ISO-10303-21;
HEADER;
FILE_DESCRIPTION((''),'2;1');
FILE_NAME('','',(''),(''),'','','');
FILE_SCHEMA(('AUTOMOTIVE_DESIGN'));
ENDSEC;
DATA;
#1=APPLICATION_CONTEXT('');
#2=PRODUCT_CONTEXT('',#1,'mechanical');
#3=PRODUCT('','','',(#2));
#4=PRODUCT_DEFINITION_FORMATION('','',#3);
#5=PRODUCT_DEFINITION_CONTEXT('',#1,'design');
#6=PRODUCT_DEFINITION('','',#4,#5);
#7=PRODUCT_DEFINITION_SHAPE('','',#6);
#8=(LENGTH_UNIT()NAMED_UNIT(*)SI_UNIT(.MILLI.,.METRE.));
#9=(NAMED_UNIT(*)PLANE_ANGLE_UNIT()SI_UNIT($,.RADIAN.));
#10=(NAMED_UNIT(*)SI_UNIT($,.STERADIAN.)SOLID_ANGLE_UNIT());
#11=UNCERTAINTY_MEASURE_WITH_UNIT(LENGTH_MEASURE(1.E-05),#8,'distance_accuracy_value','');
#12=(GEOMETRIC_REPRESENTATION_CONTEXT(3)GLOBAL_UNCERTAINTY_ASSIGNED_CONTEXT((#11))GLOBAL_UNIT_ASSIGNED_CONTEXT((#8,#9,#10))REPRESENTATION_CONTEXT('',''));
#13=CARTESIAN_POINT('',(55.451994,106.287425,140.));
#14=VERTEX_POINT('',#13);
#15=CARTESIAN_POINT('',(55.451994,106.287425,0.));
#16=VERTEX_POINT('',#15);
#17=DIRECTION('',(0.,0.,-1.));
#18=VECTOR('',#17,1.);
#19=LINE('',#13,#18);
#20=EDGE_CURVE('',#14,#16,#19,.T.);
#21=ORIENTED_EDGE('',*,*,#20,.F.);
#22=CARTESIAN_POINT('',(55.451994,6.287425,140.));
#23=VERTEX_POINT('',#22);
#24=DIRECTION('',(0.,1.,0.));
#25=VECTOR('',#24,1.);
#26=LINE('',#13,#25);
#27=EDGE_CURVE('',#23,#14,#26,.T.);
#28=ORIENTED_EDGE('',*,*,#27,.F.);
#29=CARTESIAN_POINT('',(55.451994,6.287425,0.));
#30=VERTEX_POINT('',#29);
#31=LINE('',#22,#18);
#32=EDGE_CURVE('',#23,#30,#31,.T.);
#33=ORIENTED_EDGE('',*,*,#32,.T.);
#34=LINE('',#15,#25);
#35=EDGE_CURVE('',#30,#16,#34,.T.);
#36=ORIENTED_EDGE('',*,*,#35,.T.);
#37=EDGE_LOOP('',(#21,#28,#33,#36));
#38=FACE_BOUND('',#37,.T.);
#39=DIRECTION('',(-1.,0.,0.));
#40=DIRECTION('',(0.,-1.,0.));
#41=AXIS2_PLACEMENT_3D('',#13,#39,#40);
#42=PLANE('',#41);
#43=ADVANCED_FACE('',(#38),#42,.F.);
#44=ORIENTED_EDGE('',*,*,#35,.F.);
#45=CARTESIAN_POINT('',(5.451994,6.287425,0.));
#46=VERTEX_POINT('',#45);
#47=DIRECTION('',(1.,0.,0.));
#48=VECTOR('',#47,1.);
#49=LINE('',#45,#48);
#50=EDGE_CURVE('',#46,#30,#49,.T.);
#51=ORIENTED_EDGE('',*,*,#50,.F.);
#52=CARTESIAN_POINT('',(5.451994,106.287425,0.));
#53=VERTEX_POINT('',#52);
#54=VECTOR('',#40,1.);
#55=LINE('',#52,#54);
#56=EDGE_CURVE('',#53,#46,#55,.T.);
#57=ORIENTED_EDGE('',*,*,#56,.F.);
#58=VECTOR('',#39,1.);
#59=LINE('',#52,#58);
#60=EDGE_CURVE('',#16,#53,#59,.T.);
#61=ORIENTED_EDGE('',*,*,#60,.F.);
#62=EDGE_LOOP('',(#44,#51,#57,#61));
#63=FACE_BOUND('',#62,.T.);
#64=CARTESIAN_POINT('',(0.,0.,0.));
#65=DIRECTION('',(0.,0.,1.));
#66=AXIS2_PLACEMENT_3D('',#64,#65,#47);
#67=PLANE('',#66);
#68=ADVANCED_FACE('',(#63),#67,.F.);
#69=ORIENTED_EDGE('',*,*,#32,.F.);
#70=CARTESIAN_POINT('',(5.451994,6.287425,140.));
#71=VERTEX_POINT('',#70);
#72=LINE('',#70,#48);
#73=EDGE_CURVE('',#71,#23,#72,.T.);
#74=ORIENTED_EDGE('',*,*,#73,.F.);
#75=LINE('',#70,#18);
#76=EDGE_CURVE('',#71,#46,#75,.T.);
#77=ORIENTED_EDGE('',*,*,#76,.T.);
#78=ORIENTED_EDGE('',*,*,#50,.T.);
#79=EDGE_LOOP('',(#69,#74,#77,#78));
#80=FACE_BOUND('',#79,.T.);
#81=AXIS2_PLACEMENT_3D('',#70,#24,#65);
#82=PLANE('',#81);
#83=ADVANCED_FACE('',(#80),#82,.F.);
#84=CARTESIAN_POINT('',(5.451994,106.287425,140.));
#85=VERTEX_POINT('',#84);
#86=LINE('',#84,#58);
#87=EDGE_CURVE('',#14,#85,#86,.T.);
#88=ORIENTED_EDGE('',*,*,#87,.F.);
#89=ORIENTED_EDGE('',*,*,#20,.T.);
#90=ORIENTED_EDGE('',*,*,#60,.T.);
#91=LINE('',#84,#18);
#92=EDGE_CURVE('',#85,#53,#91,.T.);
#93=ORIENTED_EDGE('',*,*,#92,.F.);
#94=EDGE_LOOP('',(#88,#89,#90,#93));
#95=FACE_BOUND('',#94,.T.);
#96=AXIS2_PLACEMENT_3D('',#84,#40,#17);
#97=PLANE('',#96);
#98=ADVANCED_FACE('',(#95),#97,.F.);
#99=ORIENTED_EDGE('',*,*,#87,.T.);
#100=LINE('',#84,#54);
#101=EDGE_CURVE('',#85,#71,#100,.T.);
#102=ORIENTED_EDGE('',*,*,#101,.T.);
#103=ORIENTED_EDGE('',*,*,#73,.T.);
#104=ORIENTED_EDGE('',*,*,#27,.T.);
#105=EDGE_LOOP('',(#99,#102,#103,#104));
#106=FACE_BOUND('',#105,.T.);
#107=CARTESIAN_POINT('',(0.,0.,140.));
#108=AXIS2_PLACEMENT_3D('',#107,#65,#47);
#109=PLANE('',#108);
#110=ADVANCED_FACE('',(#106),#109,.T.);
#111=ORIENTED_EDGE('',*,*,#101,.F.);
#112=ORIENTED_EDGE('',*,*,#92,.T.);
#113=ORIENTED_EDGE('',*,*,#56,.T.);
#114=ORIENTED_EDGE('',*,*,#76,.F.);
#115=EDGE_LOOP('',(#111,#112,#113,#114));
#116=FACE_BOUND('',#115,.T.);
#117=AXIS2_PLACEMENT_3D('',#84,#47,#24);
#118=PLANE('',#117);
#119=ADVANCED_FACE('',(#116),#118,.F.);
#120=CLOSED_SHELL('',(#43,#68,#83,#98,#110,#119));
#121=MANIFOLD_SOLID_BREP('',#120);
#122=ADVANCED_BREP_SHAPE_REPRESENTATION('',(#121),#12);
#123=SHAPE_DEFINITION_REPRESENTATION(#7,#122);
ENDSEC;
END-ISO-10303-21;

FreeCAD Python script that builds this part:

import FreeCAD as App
import Part
import Sketcher
Q = App.Units.Quantity

doc = App.newDocument("Part")
body = doc.addObject("PartDesign::Body", "Body")

# Sketch on XY plane
sketch1 = body.newObject("Sketcher::SketchObject", "Sketch")
sketch1.AttachmentSupport = (doc.getObject("XY_Plane"), [""])
sketch1.MapMode = "FlatFace"
sketch1.addGeometry([
    Part.LineSegment(App.Vector(5.451994, 106.287425, 0), App.Vector(5.451994, 6.287425, 0)),
    Part.LineSegment(App.Vector(5.451994, 6.287425, 0), App.Vector(55.451994, 6.287425, 0)),
    Part.LineSegment(App.Vector(55.451994, 6.287425, 0), App.Vector(55.451994, 106.287425, 0)),
    Part.LineSegment(App.Vector(55.451994, 106.287425, 0), App.Vector(5.451994, 106.287425, 0)),
], False)
sketch1.addConstraint([
    Sketcher.Constraint("Coincident", 0, 2, 1, 1),
    Sketcher.Constraint("Coincident", 1, 2, 2, 1),
    Sketcher.Constraint("Coincident", 2, 2, 3, 1),
    Sketcher.Constraint("Coincident", 3, 2, 0, 1),
    Sketcher.Constraint("Vertical", 0),
    Sketcher.Constraint("Horizontal", 1),
    Sketcher.Constraint("Vertical", 2),
    Sketcher.Constraint("Horizontal", 3),
    Sketcher.Constraint("DistanceX", 1, 1, 1, 2, Q("50 mm")),
    Sketcher.Constraint("DistanceY", 0, 2, 0, 1, Q("100 mm")),
    Sketcher.Constraint("DistanceX", -1, 1, 0, 2, Q("5.451994 mm")),
    Sketcher.Constraint("DistanceY", -1, 1, 0, 2, Q("6.287425 mm")),
])
pad1 = body.newObject("PartDesign::Pad", "Pad")
pad1.Profile = sketch1
pad1.Length = 140

doc.recompute()
